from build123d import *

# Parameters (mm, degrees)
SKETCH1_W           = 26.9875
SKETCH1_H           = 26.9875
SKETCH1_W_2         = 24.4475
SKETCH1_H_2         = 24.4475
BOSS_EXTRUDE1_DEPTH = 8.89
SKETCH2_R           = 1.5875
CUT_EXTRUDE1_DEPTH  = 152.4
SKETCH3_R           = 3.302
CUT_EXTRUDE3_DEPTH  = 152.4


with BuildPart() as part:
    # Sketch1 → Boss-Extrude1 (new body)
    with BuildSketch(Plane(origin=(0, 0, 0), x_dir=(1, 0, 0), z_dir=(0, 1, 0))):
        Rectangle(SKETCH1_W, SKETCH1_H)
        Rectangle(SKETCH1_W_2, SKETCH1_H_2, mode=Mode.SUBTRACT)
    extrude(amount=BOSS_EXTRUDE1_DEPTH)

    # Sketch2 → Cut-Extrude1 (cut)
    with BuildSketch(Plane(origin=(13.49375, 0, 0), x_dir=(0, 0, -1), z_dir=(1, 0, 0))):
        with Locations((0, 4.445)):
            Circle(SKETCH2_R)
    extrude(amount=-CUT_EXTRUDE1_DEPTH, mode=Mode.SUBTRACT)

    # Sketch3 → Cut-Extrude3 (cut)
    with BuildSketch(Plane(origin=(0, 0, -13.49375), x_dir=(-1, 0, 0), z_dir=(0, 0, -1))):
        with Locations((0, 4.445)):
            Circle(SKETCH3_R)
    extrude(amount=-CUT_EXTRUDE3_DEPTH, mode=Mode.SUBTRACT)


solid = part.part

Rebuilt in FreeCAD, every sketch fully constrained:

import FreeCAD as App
import Part
import Sketcher
from FreeCAD import Vector
Q = App.Units.Quantity

doc = App.newDocument("Part")
body = doc.addObject("PartDesign::Body", "Body")

# Sketch on XZ plane
sketch1 = body.newObject("Sketcher::SketchObject", "Sketch")
sketch1.AttachmentSupport = (doc.getObject("XZ_Plane"), [""])
sketch1.MapMode = "FlatFace"
sketch1.addGeometry([
    Part.LineSegment(Vector(-13, -13, 0), Vector(-13, 13, 0)),  # 0
    Part.LineSegment(Vector(-13, 13, 0), Vector(13, 13, 0)),  # 1
    Part.LineSegment(Vector(13, 13, 0), Vector(13, -13, 0)),  # 2
    Part.LineSegment(Vector(13, -13, 0), Vector(-13, -13, 0)),  # 3
    Part.LineSegment(Vector(12, 12, 0), Vector(-12, 12, 0)),  # 4
    Part.LineSegment(Vector(-12, 12, 0), Vector(-12, -12, 0)),  # 5
    Part.LineSegment(Vector(-12, -12, 0), Vector(12, -12, 0)),  # 6
    Part.LineSegment(Vector(12, -12, 0), Vector(12, 12, 0)),  # 7
], False)
sketch1.addConstraint([
    Sketcher.Constraint("Coincident", 0, 2, 1, 1),
    Sketcher.Constraint("Coincident", 1, 2, 2, 1),
    Sketcher.Constraint("Coincident", 2, 2, 3, 1),
    Sketcher.Constraint("Coincident", 3, 2, 0, 1),
    Sketcher.Constraint("Coincident", 4, 2, 5, 1),
    Sketcher.Constraint("Coincident", 5, 2, 6, 1),
    Sketcher.Constraint("Coincident", 6, 2, 7, 1),
    Sketcher.Constraint("Coincident", 7, 2, 4, 1),
    Sketcher.Constraint("Vertical", 0),
    Sketcher.Constraint("Horizontal", 1),
    Sketcher.Constraint("Vertical", 2),
    Sketcher.Constraint("Horizontal", 3),
    Sketcher.Constraint("Horizontal", 4),
    Sketcher.Constraint("Vertical", 5),
    Sketcher.Constraint("Horizontal", 6),
    Sketcher.Constraint("Vertical", 7),
    Sketcher.Constraint("Symmetric", 0, 2, 2, 2, -1, 1),
    Sketcher.Constraint("Symmetric", 4, 2, 6, 2, -1, 1),
    Sketcher.Constraint("Equal", 3, 0),
    Sketcher.Constraint("Equal", 6, 5),
    Sketcher.Constraint("DistanceX", 1, 1, 1, 2, Q("1.0625 in")),
    Sketcher.Constraint("DistanceX", 0, 2, 4, 2, Q("0.05 in")),
])
pad1 = body.newObject("PartDesign::Pad", "Pad")
pad1.Profile = sketch1
pad1.Length = Q("0.35 in")
pad1.Reversed = True

# Sketch on YZ plane
sketch2 = body.newObject("Sketcher::SketchObject", "Sketch001")
sketch2.AttachmentSupport = (doc.getObject("YZ_Plane"), [""])
sketch2.MapMode = "FlatFace"
sketch2.AttachmentOffset = App.Placement(Vector(0, 0, 0.53125 * 25.4), App.Rotation())
sketch2.addGeometry(Part.Circle(Vector(4.4, 0, 0), Vector(0, 0, 1), 1.6), False)
sketch2.addConstraint([
    Sketcher.Constraint("PointOnObject", 0, 3, -1),
    Sketcher.Constraint("Diameter", 0, Q("0.125 in")),
    Sketcher.Constraint("DistanceX", -1, 1, 0, 3, Q("0.175 in")),
])
pocket1 = body.newObject("PartDesign::Pocket", "Pocket")
pocket1.Profile = sketch2
pocket1.Length = Q("6 in")

# Sketch on XY plane
sketch3 = body.newObject("Sketcher::SketchObject", "Sketch002")
sketch3.AttachmentSupport = (doc.getObject("XY_Plane"), [""])
sketch3.MapMode = "FlatFace"
sketch3.AttachmentOffset = App.Placement(Vector(0, 0, -0.53125 * 25.4), App.Rotation())
sketch3.addGeometry(Part.Circle(Vector(0, 4.4, 0), Vector(0, 0, 1), 3.3), False)
sketch3.addConstraint([
    Sketcher.Constraint("PointOnObject", 0, 3, -2),
    Sketcher.Constraint("Diameter", 0, Q("0.26 in")),
    Sketcher.Constraint("DistanceY", -1, 1, 0, 3, Q("0.175 in")),
])
pocket2 = body.newObject("PartDesign::Pocket", "Pocket001")
pocket2.Profile = sketch3
pocket2.Length = Q("6 in")
pocket2.Reversed = True

doc.recompute()
